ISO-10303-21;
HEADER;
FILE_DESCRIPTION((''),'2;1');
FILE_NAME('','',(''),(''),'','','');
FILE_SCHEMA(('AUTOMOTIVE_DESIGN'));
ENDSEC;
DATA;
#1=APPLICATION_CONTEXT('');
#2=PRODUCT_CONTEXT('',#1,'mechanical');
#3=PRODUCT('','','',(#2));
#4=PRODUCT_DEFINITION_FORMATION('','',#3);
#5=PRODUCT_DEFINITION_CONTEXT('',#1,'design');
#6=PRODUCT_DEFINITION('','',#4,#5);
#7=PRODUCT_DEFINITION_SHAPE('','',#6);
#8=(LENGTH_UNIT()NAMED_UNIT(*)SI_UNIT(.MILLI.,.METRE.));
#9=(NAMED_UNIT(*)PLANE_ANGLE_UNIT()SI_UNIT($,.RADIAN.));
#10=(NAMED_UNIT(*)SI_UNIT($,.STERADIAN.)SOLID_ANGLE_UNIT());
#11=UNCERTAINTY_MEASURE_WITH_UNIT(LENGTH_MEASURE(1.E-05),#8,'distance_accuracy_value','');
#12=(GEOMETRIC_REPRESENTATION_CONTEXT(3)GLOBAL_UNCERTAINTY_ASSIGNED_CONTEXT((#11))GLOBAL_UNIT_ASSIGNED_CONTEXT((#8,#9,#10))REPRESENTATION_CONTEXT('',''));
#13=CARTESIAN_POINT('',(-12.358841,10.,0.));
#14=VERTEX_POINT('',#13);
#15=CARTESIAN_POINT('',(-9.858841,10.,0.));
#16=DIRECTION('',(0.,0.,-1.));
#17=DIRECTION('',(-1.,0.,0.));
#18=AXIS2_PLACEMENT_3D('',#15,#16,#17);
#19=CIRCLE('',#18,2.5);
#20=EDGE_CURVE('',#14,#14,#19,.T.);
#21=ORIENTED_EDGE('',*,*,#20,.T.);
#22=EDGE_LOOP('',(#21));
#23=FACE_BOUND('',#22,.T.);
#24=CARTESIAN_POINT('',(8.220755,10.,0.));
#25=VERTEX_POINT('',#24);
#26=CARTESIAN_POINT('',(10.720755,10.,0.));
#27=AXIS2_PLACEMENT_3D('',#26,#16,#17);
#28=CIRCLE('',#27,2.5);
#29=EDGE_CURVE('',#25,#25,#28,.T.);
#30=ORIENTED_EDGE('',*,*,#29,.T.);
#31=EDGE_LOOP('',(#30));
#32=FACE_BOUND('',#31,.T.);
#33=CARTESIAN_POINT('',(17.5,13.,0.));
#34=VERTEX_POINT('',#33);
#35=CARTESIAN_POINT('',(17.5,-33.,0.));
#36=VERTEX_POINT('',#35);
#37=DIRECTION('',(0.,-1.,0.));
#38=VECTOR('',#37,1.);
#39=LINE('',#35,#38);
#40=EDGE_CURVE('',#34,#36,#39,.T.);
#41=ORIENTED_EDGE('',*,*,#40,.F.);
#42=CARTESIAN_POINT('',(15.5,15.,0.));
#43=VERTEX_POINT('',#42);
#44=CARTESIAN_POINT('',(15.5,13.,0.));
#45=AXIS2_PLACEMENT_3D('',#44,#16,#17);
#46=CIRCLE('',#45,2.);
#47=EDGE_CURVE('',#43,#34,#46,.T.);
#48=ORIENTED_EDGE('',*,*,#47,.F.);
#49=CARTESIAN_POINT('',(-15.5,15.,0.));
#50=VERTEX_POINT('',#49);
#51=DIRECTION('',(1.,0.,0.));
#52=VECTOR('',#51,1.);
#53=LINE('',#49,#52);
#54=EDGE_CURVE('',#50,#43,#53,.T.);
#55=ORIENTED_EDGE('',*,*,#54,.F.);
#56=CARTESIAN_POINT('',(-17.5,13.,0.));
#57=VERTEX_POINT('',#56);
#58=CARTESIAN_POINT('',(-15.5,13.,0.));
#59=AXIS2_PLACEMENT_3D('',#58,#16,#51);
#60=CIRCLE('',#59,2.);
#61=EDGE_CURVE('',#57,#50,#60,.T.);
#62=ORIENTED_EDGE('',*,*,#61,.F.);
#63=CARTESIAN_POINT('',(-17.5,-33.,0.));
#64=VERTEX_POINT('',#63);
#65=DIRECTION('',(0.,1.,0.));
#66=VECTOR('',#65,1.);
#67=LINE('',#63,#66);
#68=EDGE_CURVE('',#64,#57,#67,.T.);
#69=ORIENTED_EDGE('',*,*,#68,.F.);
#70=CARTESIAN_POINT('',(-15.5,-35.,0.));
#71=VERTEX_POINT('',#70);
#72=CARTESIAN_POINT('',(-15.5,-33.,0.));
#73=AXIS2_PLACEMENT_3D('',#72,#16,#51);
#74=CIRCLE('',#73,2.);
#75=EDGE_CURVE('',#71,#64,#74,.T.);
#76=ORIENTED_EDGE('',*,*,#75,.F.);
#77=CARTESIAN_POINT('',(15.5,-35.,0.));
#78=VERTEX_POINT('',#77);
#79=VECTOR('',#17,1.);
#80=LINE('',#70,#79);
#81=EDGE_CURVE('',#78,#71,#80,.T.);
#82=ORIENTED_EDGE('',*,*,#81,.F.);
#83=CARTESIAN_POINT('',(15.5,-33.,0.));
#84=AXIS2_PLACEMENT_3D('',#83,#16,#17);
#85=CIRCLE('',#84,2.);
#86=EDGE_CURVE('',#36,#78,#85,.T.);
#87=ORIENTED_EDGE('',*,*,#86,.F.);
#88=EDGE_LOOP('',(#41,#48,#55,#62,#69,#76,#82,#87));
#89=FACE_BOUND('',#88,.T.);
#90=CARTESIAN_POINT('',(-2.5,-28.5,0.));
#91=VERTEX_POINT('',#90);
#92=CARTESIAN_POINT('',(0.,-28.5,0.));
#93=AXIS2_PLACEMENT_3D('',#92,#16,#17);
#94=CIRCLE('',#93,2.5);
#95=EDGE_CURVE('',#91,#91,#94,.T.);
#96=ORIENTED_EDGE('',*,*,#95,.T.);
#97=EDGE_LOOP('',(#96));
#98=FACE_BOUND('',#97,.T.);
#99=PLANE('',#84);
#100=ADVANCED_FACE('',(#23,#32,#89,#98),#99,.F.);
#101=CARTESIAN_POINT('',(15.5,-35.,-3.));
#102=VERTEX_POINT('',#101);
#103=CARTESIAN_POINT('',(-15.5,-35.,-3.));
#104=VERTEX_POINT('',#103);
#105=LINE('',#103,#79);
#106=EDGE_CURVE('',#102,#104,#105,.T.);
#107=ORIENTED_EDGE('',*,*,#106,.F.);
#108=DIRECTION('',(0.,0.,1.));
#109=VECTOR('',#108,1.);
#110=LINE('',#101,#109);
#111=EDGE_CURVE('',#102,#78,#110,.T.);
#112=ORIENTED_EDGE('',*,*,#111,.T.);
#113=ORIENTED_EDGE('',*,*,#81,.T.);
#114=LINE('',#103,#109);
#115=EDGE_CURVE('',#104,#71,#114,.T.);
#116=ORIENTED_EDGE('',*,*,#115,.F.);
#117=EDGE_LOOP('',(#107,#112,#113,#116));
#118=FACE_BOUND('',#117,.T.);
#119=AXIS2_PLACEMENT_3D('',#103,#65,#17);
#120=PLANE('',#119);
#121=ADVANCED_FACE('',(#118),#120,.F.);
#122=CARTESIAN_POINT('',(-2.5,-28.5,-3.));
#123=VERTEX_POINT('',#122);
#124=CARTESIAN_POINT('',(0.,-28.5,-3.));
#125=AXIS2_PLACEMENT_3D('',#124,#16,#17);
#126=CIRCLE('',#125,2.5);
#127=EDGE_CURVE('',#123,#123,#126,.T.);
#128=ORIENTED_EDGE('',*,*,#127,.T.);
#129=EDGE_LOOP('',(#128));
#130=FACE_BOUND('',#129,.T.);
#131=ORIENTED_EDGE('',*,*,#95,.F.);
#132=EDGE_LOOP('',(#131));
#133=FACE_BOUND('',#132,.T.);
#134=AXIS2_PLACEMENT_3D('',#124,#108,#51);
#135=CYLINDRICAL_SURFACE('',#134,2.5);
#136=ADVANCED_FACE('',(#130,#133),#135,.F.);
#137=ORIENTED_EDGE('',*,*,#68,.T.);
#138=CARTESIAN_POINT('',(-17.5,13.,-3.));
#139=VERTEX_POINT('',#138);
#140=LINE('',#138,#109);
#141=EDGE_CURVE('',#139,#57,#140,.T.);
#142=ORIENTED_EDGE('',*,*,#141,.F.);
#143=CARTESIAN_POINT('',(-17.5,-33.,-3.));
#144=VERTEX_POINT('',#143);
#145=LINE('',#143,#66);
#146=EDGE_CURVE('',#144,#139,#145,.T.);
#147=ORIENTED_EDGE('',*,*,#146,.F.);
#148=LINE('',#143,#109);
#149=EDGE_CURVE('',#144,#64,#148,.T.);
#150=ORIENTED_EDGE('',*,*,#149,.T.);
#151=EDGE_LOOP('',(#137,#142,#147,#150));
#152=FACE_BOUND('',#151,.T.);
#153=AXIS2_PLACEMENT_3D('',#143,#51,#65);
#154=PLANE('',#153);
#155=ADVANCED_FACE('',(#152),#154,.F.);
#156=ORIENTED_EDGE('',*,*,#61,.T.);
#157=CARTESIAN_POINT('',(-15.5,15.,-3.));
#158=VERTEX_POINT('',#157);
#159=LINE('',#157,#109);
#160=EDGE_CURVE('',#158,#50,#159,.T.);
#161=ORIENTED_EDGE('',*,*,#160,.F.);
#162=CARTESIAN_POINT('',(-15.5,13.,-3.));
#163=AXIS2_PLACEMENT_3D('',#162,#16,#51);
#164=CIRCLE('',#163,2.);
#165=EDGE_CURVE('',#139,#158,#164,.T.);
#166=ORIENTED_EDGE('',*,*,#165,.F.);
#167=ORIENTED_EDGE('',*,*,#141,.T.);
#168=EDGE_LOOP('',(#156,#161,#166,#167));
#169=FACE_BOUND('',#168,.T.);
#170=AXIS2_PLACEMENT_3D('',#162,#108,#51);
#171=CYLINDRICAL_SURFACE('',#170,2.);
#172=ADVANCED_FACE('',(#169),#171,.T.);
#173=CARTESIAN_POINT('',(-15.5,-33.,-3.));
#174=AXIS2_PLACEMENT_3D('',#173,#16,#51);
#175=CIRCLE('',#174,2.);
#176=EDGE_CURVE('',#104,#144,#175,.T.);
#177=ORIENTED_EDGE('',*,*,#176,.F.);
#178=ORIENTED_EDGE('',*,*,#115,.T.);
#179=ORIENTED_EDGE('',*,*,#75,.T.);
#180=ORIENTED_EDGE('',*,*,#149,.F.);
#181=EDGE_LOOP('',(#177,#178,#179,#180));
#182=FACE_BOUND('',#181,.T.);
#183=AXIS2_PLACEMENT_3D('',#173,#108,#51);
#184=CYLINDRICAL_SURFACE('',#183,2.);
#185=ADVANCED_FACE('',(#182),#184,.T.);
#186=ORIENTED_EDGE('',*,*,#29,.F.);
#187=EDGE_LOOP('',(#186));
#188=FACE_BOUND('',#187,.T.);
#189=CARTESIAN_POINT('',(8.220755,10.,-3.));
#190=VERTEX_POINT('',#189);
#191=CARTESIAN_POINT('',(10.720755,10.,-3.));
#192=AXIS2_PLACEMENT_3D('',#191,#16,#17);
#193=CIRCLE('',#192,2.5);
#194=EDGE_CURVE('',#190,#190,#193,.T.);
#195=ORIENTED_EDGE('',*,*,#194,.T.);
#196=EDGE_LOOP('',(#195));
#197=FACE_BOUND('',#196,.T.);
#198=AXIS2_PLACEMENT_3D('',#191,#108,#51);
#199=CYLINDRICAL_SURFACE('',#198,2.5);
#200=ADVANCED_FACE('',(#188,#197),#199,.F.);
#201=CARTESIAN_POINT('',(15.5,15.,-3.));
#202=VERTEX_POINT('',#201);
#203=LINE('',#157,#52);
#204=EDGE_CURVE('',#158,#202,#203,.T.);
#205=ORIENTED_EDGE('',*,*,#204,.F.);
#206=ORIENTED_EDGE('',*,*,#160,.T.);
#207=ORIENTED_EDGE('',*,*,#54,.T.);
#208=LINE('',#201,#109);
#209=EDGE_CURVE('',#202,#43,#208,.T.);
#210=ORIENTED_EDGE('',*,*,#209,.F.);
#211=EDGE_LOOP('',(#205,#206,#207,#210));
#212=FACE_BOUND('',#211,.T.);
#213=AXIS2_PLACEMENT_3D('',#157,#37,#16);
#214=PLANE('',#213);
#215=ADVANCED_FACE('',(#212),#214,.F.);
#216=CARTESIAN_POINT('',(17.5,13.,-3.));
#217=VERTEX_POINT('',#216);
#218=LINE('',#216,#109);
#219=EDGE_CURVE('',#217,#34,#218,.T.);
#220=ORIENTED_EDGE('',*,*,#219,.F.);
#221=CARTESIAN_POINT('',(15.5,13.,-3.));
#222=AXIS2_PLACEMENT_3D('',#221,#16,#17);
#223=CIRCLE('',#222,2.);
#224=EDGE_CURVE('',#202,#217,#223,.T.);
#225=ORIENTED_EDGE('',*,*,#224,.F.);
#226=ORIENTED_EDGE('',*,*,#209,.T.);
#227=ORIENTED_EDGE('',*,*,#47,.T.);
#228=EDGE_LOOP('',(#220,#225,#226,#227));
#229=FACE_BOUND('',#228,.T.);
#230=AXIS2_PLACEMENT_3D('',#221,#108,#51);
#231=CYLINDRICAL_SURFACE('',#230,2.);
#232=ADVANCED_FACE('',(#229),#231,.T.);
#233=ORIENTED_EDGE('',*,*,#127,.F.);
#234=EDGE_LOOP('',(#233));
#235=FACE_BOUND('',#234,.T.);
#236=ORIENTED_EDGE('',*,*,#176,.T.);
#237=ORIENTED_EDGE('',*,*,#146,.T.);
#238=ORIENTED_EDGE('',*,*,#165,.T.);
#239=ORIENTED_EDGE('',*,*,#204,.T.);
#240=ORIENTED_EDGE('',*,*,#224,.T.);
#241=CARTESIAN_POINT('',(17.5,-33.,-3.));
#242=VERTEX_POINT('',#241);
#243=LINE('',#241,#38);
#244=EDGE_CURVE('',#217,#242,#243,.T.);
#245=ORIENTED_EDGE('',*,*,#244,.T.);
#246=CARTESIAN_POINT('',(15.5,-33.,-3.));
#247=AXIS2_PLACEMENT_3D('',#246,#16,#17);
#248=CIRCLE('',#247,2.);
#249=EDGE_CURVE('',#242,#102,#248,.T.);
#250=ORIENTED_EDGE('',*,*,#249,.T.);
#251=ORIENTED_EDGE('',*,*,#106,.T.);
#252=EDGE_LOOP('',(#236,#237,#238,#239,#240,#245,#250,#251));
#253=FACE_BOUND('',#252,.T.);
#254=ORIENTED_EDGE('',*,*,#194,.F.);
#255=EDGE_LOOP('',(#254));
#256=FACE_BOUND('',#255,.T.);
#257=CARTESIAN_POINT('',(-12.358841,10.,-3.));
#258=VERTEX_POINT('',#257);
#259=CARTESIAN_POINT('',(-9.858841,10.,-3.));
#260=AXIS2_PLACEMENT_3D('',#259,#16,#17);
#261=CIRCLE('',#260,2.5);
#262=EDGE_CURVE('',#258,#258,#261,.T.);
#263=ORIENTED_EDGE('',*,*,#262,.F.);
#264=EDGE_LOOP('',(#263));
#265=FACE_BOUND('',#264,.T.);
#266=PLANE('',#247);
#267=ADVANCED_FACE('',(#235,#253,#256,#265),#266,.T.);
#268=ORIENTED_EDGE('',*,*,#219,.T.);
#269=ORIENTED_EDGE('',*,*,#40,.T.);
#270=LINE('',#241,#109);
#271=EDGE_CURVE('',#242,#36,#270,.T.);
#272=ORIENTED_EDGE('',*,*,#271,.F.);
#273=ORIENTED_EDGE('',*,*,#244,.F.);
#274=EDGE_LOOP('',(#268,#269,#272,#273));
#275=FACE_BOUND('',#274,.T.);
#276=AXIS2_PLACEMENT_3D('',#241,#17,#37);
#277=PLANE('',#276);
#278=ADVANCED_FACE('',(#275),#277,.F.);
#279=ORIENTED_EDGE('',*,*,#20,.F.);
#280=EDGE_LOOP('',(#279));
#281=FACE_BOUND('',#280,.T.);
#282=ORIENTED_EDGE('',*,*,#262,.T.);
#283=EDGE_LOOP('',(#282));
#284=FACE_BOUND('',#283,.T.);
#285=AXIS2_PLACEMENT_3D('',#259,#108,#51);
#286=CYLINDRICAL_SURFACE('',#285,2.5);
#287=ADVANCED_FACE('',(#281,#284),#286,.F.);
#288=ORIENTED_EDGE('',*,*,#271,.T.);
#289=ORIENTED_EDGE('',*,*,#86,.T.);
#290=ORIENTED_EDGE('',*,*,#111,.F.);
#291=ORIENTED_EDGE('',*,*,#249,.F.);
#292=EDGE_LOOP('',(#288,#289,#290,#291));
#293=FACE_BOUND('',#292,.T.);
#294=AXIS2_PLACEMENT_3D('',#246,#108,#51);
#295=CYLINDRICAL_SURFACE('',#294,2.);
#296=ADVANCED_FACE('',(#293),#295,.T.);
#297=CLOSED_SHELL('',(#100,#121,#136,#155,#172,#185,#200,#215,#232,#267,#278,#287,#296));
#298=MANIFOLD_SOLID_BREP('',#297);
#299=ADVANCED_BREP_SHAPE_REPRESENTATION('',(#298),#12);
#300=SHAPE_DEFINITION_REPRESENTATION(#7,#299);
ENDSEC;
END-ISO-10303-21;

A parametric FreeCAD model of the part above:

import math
import FreeCAD as App
import Part
import Sketcher
Q = App.Units.Quantity

doc = App.newDocument("Part")
body = doc.addObject("PartDesign::Body", "Body")

sketch1 = body.newObject("Sketcher::SketchObject", "Sketch")
sketch1.AttachmentSupport = (doc.getObject("XY_Plane"), [""])
sketch1.MapMode = "FlatFace"
sketch1.addGeometry([
    Part.LineSegment(App.Vector(15.5, -35, 0), App.Vector(-15.5, -35, 0)),
    Part.ArcOfCircle(Part.Circle(App.Vector(-15.5, -33, 0), App.Vector(0, 0, 1), 2), math.radians(-180), math.radians(-90)),
    Part.LineSegment(App.Vector(-17.5, -33, 0), App.Vector(-17.5, 13, 0)),
    Part.ArcOfCircle(Part.Circle(App.Vector(-15.5, 13, 0), App.Vector(0, 0, 1), 2), math.radians(90), math.radians(180)),
    Part.LineSegment(App.Vector(-15.5, 15, 0), App.Vector(15.5, 15, 0)),
    Part.ArcOfCircle(Part.Circle(App.Vector(15.5, 13, 0), App.Vector(0, 0, 1), 2), math.radians(0), math.radians(90)),
    Part.LineSegment(App.Vector(17.5, 13, 0), App.Vector(17.5, -33, 0)),
    Part.ArcOfCircle(Part.Circle(App.Vector(15.5, -33, 0), App.Vector(0, 0, 1), 2), math.radians(-90), math.radians(0)),
    Part.Circle(App.Vector(10.720755, 10, 0), App.Vector(0, 0, 1), 2.5),
    Part.Circle(App.Vector(-9.858841, 10, 0), App.Vector(0, 0, 1), 2.5),
    Part.Circle(App.Vector(0, -28.5, 0), App.Vector(0, 0, 1), 2.5),
], False)
sketch1.addConstraint([
    Sketcher.Constraint("Tangent", 0, 2, 1, 2),
    Sketcher.Constraint("Tangent", 1, 1, 2, 1),
    Sketcher.Constraint("Tangent", 2, 2, 3, 2),
    Sketcher.Constraint("Tangent", 3, 1, 4, 1),
    Sketcher.Constraint("Tangent", 4, 2, 5, 2),
    Sketcher.Constraint("Tangent", 5, 1, 6, 1),
    Sketcher.Constraint("Tangent", 6, 2, 7, 2),
    Sketcher.Constraint("Tangent", 7, 1, 0, 1),
    Sketcher.Constraint("Horizontal", 0),
    Sketcher.Constraint("Vertical", 2),
    Sketcher.Constraint("Horizontal", 4),
    Sketcher.Constraint("Vertical", 6),
    Sketcher.Constraint("Equal", 1, 3),
    Sketcher.Constraint("Equal", 3, 5),
    Sketcher.Constraint("Equal", 5, 7),
    Sketcher.Constraint("Equal", 8, 9),
    Sketcher.Constraint("Equal", 9, 10),
    Sketcher.Constraint("PointOnObject", 10, 3, -2),
    Sketcher.Constraint("Horizontal", 8, 3, 9, 3),
    Sketcher.Constraint("Diameter", 8, Q("5 mm")),
    Sketcher.Constraint("Radius", 1, Q("2 mm")),
    Sketcher.Constraint("DistanceX", 0, 2, 0, 1, Q("31 mm")),
    Sketcher.Constraint("DistanceY", 2, 1, 2, 2, Q("46 mm")),
    Sketcher.Constraint("DistanceY", 1, 3, -1, 1, Q("33 mm")),
    Sketcher.Constraint("DistanceY", -1, 1, 8, 3, Q("10 mm")),
    Sketcher.Constraint("DistanceX", 1, 3, -1, 1, Q("15.5 mm")),
    Sketcher.Constraint("DistanceY", 10, 3, -1, 1, Q("28.5 mm")),
    Sketcher.Constraint("DistanceX", 9, 3, -1, 1, Q("9.858841 mm")),
    Sketcher.Constraint("DistanceX", -1, 1, 8, 3, Q("10.720755 mm")),
])
pad1 = body.newObject("PartDesign::Pad", "Pad")
pad1.Profile = sketch1
pad1.Length = 3
pad1.Reversed = True

doc.recompute()
